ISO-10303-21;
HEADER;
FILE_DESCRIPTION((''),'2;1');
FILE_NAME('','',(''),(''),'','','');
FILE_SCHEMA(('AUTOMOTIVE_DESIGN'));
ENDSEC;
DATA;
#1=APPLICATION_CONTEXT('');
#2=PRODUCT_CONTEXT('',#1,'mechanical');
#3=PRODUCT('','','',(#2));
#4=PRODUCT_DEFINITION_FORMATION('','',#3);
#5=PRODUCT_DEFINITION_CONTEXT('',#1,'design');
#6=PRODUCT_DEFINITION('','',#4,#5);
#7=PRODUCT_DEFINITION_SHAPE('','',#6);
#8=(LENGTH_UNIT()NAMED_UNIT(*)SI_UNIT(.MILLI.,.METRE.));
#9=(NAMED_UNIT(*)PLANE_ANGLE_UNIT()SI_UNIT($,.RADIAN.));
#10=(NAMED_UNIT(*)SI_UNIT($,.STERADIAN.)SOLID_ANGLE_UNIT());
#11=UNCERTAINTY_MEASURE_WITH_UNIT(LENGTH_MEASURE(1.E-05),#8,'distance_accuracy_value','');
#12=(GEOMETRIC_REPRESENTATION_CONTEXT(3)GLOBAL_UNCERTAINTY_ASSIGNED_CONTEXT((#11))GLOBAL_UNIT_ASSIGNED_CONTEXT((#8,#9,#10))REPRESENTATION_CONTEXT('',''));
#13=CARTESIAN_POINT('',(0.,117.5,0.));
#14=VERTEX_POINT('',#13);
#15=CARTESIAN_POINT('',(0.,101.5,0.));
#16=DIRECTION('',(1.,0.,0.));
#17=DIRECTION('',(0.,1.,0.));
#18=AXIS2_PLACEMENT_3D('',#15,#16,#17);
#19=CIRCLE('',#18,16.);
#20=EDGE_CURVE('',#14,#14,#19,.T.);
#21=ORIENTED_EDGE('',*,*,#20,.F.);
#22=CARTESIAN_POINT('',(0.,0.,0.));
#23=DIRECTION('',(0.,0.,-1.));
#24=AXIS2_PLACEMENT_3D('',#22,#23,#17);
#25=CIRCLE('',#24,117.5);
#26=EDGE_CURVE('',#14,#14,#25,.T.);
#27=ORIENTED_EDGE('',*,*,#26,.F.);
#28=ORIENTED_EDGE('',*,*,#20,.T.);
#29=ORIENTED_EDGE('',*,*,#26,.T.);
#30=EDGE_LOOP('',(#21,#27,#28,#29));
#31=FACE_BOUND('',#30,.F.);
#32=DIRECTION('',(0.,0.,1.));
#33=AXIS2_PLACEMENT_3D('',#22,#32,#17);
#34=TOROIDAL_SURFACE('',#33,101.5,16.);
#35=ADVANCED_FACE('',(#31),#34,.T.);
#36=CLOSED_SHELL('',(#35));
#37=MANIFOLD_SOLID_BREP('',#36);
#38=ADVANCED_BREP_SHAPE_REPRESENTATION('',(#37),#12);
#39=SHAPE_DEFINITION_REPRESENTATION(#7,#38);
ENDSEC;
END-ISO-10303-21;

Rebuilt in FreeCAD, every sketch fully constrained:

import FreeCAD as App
import Part
import Sketcher
Q = App.Units.Quantity

doc = App.newDocument("Part")
body = doc.addObject("PartDesign::Body", "Body")

# Sketch on YZ plane
sketch1 = doc.addObject("Sketcher::SketchObject", "Sketch")
body.addObject(sketch1)
sketch1.AttachmentSupport = (doc.YZ_Plane, [""])
sketch1.MapMode = "FlatFace"
sketch1.addGeometry(Part.Circle(App.Vector(102, 0, 0), App.Vector(0, 0, 1), 16), False)
sketch1.addConstraint([
    Sketcher.Constraint("PointOnObject", 0, 3, -1),
    Sketcher.Constraint("Diameter", 0, Q("32 mm")),
    Sketcher.Constraint("DistanceX", -1, 1, 0, 3, Q("101.5 mm")),
])
revolution = doc.addObject("PartDesign::Revolution", "Revolution")
body.addObject(revolution)
revolution.Profile = sketch1
revolution.ReferenceAxis = (sketch1, ["V_Axis"])
revolution.Angle = 360

doc.recompute()
